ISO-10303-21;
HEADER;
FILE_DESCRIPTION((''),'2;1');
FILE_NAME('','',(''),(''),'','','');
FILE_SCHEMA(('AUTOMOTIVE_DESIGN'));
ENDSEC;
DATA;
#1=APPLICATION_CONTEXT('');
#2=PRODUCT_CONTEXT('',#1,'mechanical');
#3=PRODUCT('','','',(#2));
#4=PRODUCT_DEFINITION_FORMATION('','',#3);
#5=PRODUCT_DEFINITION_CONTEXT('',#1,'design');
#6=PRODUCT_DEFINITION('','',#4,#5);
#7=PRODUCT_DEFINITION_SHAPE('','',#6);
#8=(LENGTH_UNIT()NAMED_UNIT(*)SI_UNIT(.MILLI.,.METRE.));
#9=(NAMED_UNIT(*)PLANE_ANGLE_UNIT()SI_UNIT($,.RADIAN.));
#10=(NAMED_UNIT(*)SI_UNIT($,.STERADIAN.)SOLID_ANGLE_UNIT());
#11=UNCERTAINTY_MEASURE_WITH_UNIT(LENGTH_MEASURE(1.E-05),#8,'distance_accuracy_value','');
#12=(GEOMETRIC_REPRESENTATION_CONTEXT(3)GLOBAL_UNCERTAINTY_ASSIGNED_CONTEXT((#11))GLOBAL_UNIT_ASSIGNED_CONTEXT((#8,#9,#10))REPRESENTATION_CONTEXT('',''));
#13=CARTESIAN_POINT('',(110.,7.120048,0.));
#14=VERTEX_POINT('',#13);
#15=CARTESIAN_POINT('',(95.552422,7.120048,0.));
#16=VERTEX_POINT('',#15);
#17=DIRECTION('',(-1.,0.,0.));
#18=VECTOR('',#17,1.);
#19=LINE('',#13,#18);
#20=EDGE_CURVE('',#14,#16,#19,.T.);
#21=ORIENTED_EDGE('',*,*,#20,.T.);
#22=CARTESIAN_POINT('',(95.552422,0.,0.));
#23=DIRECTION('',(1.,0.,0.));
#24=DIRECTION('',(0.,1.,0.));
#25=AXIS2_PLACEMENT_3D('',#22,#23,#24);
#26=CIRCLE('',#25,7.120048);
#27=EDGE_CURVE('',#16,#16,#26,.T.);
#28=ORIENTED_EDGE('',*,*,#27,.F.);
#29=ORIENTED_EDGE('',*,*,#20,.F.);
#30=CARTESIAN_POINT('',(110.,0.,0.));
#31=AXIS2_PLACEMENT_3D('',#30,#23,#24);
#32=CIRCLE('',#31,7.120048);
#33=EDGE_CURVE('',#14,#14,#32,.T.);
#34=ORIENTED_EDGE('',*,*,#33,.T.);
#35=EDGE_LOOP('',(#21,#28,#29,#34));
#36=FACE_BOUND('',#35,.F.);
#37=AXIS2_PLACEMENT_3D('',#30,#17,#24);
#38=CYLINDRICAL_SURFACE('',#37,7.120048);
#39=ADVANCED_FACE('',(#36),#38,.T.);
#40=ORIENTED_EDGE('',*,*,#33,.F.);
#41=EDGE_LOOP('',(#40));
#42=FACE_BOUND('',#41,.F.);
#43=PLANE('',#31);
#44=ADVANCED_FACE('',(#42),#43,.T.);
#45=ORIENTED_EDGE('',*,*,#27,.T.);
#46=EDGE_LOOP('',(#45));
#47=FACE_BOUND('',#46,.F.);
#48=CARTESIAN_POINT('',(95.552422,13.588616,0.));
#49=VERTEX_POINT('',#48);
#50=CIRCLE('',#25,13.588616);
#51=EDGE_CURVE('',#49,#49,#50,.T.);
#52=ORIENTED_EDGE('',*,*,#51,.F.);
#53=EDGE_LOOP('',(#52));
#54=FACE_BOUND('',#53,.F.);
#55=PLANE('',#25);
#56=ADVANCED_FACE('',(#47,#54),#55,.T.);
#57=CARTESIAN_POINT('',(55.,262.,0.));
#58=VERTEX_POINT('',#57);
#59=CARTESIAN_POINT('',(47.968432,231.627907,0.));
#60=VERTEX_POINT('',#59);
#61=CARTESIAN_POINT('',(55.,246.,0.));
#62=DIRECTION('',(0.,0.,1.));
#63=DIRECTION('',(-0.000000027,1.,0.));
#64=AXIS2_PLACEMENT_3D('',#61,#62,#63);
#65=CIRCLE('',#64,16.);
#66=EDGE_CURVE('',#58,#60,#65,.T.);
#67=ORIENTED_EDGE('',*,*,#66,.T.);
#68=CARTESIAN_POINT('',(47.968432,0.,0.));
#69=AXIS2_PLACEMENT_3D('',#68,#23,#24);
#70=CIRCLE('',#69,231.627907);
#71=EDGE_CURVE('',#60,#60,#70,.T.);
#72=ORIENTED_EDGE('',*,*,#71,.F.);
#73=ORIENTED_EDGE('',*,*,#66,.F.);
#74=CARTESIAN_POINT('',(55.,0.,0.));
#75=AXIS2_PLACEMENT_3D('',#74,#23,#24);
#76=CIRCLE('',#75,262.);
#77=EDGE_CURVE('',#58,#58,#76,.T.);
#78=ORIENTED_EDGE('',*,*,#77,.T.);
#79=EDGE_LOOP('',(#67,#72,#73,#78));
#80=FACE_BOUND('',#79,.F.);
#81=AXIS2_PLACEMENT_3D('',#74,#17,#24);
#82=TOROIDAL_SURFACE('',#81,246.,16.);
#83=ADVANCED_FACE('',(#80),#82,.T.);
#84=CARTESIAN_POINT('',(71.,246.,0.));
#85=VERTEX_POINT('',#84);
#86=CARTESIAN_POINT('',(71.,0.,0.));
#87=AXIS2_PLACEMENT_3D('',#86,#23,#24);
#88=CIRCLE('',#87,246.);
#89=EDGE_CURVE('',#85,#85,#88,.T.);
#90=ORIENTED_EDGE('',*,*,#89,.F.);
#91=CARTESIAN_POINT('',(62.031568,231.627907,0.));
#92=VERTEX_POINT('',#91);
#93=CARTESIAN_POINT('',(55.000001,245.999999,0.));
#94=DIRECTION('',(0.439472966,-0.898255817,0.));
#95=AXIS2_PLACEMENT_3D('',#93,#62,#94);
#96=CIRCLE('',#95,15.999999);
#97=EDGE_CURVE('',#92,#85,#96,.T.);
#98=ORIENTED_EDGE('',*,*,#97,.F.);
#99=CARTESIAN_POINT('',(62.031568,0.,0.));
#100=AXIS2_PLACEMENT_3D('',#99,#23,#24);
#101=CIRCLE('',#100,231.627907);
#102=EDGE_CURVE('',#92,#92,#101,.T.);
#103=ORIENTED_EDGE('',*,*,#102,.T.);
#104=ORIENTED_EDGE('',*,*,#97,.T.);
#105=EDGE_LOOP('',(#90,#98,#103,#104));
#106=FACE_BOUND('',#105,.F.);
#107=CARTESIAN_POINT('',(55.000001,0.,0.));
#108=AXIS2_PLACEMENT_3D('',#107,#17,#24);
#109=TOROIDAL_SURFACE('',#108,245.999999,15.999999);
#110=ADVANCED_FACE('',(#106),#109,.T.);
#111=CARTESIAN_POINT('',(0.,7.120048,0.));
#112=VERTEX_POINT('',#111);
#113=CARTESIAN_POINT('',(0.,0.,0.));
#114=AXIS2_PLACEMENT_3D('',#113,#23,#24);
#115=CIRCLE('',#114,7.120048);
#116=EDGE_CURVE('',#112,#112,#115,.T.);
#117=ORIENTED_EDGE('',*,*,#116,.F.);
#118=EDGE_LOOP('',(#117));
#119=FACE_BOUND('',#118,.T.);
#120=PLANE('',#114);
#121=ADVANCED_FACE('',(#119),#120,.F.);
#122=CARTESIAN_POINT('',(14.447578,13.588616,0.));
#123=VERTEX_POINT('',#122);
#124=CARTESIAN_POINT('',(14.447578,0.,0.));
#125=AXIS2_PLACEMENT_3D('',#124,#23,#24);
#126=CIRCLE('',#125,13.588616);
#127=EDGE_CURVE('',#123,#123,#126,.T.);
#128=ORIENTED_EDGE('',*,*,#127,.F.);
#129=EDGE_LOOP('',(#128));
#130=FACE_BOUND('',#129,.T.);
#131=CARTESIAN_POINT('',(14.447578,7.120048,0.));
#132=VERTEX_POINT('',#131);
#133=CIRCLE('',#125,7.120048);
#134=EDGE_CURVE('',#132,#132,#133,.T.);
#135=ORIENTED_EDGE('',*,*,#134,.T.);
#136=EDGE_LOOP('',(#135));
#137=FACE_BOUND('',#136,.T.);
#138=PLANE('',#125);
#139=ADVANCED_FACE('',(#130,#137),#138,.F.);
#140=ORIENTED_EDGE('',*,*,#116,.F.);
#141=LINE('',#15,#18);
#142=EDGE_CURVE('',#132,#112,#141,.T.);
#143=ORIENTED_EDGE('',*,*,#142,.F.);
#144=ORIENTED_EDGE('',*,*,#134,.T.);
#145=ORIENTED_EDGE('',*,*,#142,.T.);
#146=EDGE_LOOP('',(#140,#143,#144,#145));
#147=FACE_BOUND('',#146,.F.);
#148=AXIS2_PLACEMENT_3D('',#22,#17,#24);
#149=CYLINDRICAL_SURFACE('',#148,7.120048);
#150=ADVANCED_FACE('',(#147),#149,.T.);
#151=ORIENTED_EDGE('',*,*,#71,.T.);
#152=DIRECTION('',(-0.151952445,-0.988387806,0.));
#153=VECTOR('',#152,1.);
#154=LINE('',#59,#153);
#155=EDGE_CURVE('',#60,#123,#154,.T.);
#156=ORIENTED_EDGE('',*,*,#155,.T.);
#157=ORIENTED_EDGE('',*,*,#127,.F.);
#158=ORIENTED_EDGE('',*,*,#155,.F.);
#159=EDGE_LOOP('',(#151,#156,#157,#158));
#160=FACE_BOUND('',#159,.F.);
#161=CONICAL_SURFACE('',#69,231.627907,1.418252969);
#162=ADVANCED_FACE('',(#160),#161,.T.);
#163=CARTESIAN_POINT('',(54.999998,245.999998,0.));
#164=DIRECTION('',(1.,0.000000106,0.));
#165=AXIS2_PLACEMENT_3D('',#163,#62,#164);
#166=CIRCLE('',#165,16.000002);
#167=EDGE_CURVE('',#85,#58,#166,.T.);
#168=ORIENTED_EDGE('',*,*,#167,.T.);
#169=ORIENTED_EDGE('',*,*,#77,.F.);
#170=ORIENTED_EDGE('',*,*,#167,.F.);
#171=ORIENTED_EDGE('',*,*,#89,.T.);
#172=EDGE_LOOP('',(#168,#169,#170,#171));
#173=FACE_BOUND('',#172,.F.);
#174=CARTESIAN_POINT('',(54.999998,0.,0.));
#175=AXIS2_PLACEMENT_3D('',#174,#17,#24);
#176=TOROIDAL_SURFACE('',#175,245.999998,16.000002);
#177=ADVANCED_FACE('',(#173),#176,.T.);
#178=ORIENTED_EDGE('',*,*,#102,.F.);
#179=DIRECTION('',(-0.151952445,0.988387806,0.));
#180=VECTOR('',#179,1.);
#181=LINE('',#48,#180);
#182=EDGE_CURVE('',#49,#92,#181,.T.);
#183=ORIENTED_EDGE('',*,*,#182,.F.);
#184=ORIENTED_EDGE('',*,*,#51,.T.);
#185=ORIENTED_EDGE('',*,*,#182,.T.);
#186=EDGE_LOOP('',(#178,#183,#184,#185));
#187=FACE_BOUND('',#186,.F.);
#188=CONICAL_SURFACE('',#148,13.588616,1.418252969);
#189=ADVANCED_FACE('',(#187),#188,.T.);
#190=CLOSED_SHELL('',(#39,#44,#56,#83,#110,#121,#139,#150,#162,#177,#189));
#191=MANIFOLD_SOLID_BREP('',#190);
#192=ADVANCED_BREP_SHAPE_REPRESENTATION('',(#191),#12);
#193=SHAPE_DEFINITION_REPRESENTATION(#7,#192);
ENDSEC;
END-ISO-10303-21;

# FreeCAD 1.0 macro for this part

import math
import FreeCAD as App
import Part
import Sketcher

V = App.Vector

doc = App.newDocument("Part")
params = doc.addObject("Spreadsheet::Sheet", "Params")
for row, (alias, value) in enumerate([
    ("sketch1_radius", "15.999999 mm"),
    ("sketch1_width", "110 mm"),
    ("revolution_angle", "360 deg"),
], start=1):
    params.set(f"A{row}", alias)
    params.set(f"B{row}", "=" + value)
    params.setAlias(f"B{row}", alias)

body = doc.addObject("PartDesign::Body", "Body")

sketch1 = body.newObject("Sketcher::SketchObject", "Sketch")
sketch1.AttachmentSupport = (doc.getObject("XY_Plane"), [""])
sketch1.MapMode = "FlatFace"
sketch1.addGeometry([
    Part.LineSegment(V(0, 7.120048, 0), V(0, 0, 0)),
    Part.LineSegment(V(0, 0, 0), V(110, 0, 0)),
    Part.LineSegment(V(110, 0, 0), V(110, 7.120048, 0)),
    Part.LineSegment(V(110, 7.120048, 0), V(95.552422, 7.120048, 0)),
    Part.LineSegment(V(95.552422, 7.120048, 0), V(95.552422, 13.588616, 0)),
    Part.LineSegment(V(95.552422, 13.588616, 0), V(62.031568, 231.627907, 0)),
    Part.ArcOfCircle(Part.Circle(V(55.000001, 245.999999, 0), V(0, 0, 1), 15.999999), math.radians(-63.929741), math.radians(0.000003)),
    Part.ArcOfCircle(Part.Circle(V(54.999998, 245.999998, 0), V(0, 0, 1), 16.000002), math.radians(0.000006), math.radians(89.999994)),
    Part.ArcOfCircle(Part.Circle(V(55, 246, 0), V(0, 0, 1), 16), math.radians(90.000002), math.radians(243.929737)),
    Part.LineSegment(V(47.968432, 231.627907, 0), V(14.447578, 13.588616, 0)),
    Part.LineSegment(V(14.447578, 13.588616, 0), V(14.447578, 7.120048, 0)),
    Part.LineSegment(V(14.447578, 7.120048, 0), V(0, 7.120048, 0)),
], False)
sketch1.addConstraint([
    Sketcher.Constraint("Coincident", 0, 2, 1, 1),
    Sketcher.Constraint("Coincident", 1, 2, 2, 1),
    Sketcher.Constraint("Coincident", 2, 2, 3, 1),
    Sketcher.Constraint("Coincident", 3, 2, 4, 1),
    Sketcher.Constraint("Coincident", 4, 2, 5, 1),
    Sketcher.Constraint("Coincident", 5, 2, 6, 1),
    Sketcher.Constraint("Tangent", 6, 2, 7, 1),
    Sketcher.Constraint("Tangent", 7, 2, 8, 1),
    Sketcher.Constraint("Coincident", 8, 2, 9, 1),
    Sketcher.Constraint("Coincident", 9, 2, 10, 1),
    Sketcher.Constraint("Coincident", 10, 2, 11, 1),
    Sketcher.Constraint("Coincident", 11, 2, 0, 1),
    Sketcher.Constraint("Vertical", 0),
    Sketcher.Constraint("Horizontal", 1),
    Sketcher.Constraint("Vertical", 2),
    Sketcher.Constraint("Horizontal", 3),
    Sketcher.Constraint("Vertical", 4),
    Sketcher.Constraint("Vertical", 10),
    Sketcher.Constraint("Horizontal", 11),
    Sketcher.Constraint("Coincident", 0, 2, -1, 1),
    Sketcher.Constraint("Coincident", 8, 3, 6, 3),
    Sketcher.Constraint("Horizontal", 8, 3, 6, 2),
    Sketcher.Constraint("Horizontal", 5, 2, 8, 2),
    Sketcher.Constraint("Horizontal", 4, 2, 9, 2),
    Sketcher.Constraint("Horizontal", 3, 2, 10, 2),
    Sketcher.Constraint("Vertical", 8, 3, 7, 2),
    Sketcher.Constraint("Equal", 3, 11),
    Sketcher.Constraint("Equal", 5, 9),
    Sketcher.Constraint("Radius", 6, 15.999999),
    Sketcher.Constraint("DistanceX", 1, 1, 1, 2, 110.0),
    Sketcher.Constraint("DistanceY", -1, 1, 6, 3, 245.999999),
    Sketcher.Constraint("DistanceY", 4, 1, 4, 2, 6.468568),
    Sketcher.Constraint("DistanceX", 3, 2, 3, 1, 14.447578),
    Sketcher.Constraint("DistanceY", 0, 2, 0, 1, 7.120048),
    Sketcher.Constraint("DistanceX", -1, 1, 8, 2, 47.968432),
])
sketch1.setExpression("Constraints[28]", "Params.sketch1_radius")
sketch1.setExpression("Constraints[29]", "Params.sketch1_width")
revolution = body.newObject("PartDesign::Revolution", "Revolution")
revolution.Profile = sketch1
revolution.ReferenceAxis = (sketch1, ["H_Axis"])
revolution.setExpression("Angle", "Params.revolution_angle")

doc.recompute()
